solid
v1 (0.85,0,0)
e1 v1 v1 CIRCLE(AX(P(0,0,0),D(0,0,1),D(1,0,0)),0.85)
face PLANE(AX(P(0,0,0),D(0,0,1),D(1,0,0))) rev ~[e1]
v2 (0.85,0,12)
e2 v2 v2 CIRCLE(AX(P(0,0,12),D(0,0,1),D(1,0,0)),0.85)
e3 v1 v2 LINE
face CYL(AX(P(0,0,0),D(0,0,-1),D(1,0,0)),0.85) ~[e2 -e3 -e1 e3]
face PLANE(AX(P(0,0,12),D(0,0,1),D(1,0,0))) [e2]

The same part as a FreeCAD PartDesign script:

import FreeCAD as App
import Part
import Sketcher

V = App.Vector

doc = App.newDocument("Part")
params = doc.addObject("Spreadsheet::Sheet", "Params")
for row, (alias, value) in enumerate([
    ("sketch1_diameter", "1.7 mm"),
    ("pad1_length", "12 mm"),
], start=1):
    params.set(f"A{row}", alias)
    params.set(f"B{row}", "=" + value)
    params.setAlias(f"B{row}", alias)

body = doc.addObject("PartDesign::Body", "Body")

sketch1 = body.newObject("Sketcher::SketchObject", "Sketch")
sketch1.AttachmentSupport = (doc.getObject("XY_Plane"), [""])
sketch1.MapMode = "FlatFace"
sketch1.addGeometry(Part.Circle(V(0, 0, 0), V(0, 0, 1), 0.8), False)
sketch1.addConstraint(Sketcher.Constraint("Coincident", 0, 3, -1, 1))
sketch1.addConstraint(Sketcher.Constraint("Diameter", 0, 1.7))
sketch1.setExpression("Constraints[1]", "Params.sketch1_diameter")
pad1 = body.newObject("PartDesign::Pad", "Pad")
pad1.Profile = sketch1
pad1.setExpression("Length", "Params.pad1_length")

doc.recompute()
